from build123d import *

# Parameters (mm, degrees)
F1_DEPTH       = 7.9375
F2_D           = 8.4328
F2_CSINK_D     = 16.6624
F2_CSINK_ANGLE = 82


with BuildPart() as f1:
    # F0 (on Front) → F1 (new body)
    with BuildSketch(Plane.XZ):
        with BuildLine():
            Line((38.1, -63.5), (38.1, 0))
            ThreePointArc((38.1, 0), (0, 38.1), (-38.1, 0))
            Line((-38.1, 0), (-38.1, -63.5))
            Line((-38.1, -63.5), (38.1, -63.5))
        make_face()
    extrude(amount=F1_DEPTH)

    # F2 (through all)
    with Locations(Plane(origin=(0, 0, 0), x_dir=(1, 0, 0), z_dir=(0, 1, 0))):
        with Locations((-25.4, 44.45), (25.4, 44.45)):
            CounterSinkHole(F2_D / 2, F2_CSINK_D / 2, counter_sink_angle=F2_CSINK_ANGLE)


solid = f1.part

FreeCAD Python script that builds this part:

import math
import FreeCAD as App
import Part
import Sketcher
Q = App.Units.Quantity

doc = App.newDocument("Part")
body = doc.addObject("PartDesign::Body", "Body")

# Sketch on XZ plane
sketch1 = doc.addObject("Sketcher::SketchObject", "Sketch")
body.addObject(sketch1)
sketch1.AttachmentSupport = (doc.XZ_Plane, [""])
sketch1.MapMode = "FlatFace"
sketch1.addGeometry(Part.LineSegment(App.Vector(38, -64, 0), App.Vector(38, 0, 0)), False)
sketch1.addGeometry(Part.ArcOfCircle(Part.Circle(App.Vector(0, 0, 0), App.Vector(0, 0, 1), 38), math.radians(0), math.radians(180)), False)
sketch1.addGeometry(Part.LineSegment(App.Vector(-38, 0, 0), App.Vector(-38, -64, 0)), False)
sketch1.addGeometry(Part.LineSegment(App.Vector(-38, -64, 0), App.Vector(38, -64, 0)), False)
sketch1.addConstraint(Sketcher.Constraint("Tangent", 0, 2, 1, 1))
sketch1.addConstraint(Sketcher.Constraint("Tangent", 1, 2, 2, 1))
sketch1.addConstraint(Sketcher.Constraint("Coincident", 2, 2, 3, 1))
sketch1.addConstraint(Sketcher.Constraint("Coincident", 3, 2, 0, 1))
sketch1.addConstraint(Sketcher.Constraint("Vertical", 0))
sketch1.addConstraint(Sketcher.Constraint("Vertical", 2))
sketch1.addConstraint(Sketcher.Constraint("Horizontal", 3))
sketch1.addConstraint(Sketcher.Constraint("Coincident", 1, 3, -1, 1))
sketch1.addConstraint(Sketcher.Constraint("Radius", 1, Q("1.5 in")))
sketch1.addConstraint(Sketcher.Constraint("DistanceY", 0, 1, 0, 2, Q("2.5 in")))
pad1 = doc.addObject("PartDesign::Pad", "Pad")
body.addObject(pad1)
pad1.Profile = sketch1
pad1.Length = Q("0.3125 in")

# Sketch on XZ plane
sketch2 = doc.addObject("Sketcher::SketchObject", "Sketch001")
body.addObject(sketch2)
sketch2.AttachmentSupport = (doc.XZ_Plane, [""])
sketch2.MapMode = "FlatFace"
sketch2.addGeometry(Part.Circle(App.Vector(-25.4, -44.5, 0), App.Vector(0, 0, 1), 4.2), False)
sketch2.addGeometry(Part.Circle(App.Vector(25.4, -44.5, 0), App.Vector(0, 0, 1), 4.2), False)
sketch2.addConstraint(Sketcher.Constraint("Equal", 0, 1))
sketch2.addConstraint(Sketcher.Constraint("Symmetric", 0, 3, 1, 3, -2))
sketch2.addConstraint(Sketcher.Constraint("Diameter", 0, Q("0.332 in")))
sketch2.addConstraint(Sketcher.Constraint("DistanceX", 0, 3, -1, 1, Q("1 in")))
sketch2.addConstraint(Sketcher.Constraint("DistanceY", 0, 3, -1, 1, Q("1.75 in")))
doc.recompute()
hole = doc.addObject("PartDesign::Hole", "Hole")
body.addObject(hole)
hole.Profile = sketch2
hole.ThreadType = "None"
hole.Diameter = Q("0.332 in")
hole.DepthType = "ThroughAll"
hole.HoleCutType = "Countersink"
hole.HoleCutDiameter = Q("0.656 in")
hole.HoleCutCountersinkAngle = 82
hole.Reversed = True

doc.recompute()
